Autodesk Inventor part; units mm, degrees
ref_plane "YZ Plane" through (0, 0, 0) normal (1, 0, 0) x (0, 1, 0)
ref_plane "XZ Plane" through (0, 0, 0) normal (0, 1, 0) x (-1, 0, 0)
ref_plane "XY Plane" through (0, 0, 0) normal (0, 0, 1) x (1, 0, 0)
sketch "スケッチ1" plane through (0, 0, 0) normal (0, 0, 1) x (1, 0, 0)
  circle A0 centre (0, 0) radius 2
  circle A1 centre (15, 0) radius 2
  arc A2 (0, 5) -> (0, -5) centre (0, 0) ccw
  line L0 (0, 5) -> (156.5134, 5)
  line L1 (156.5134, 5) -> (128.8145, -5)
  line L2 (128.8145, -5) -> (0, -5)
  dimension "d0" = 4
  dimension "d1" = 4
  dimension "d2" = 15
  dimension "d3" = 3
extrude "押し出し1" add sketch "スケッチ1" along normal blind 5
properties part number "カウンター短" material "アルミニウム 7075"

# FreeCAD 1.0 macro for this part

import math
import FreeCAD as App
import Part
import Sketcher
Q = App.Units.Quantity

doc = App.newDocument("Part")
body = doc.addObject("PartDesign::Body", "Body")

sketch1 = doc.addObject("Sketcher::SketchObject", "Sketch")
body.addObject(sketch1)
sketch1.AttachmentSupport = (doc.XY_Plane, [""])
sketch1.MapMode = "FlatFace"
sketch1.addGeometry(Part.LineSegment(App.Vector(156.5, 5, 0), App.Vector(0, 5, 0)), False)
sketch1.addGeometry(Part.ArcOfCircle(Part.Circle(App.Vector(0, 0, 0), App.Vector(0, 0, 1), 5), math.radians(90), math.radians(270)), False)
sketch1.addGeometry(Part.LineSegment(App.Vector(0, -5, 0), App.Vector(128.8, -5, 0)), False)
sketch1.addGeometry(Part.LineSegment(App.Vector(128.8, -5, 0), App.Vector(156.5, 5, 0)), False)
sketch1.addGeometry(Part.Circle(App.Vector(0, 0, 0), App.Vector(0, 0, 1), 2), False)
sketch1.addGeometry(Part.Circle(App.Vector(15, 0, 0), App.Vector(0, 0, 1), 2), False)
sketch1.addConstraint(Sketcher.Constraint("Tangent", 0, 2, 1, 1))
sketch1.addConstraint(Sketcher.Constraint("Tangent", 1, 2, 2, 1))
sketch1.addConstraint(Sketcher.Constraint("Coincident", 2, 2, 3, 1))
sketch1.addConstraint(Sketcher.Constraint("Coincident", 3, 2, 0, 1))
sketch1.addConstraint(Sketcher.Constraint("Horizontal", 0))
sketch1.addConstraint(Sketcher.Constraint("Horizontal", 2))
sketch1.addConstraint(Sketcher.Constraint("Coincident", 1, 3, -1, 1))
sketch1.addConstraint(Sketcher.Constraint("Coincident", 4, 3, -1, 1))
sketch1.addConstraint(Sketcher.Constraint("Equal", 4, 5))
sketch1.addConstraint(Sketcher.Constraint("PointOnObject", 5, 3, -1))
sketch1.addConstraint(Sketcher.Constraint("Diameter", 4, Q("4 mm")))
sketch1.addConstraint(Sketcher.Constraint("DistanceX", -1, 1, 5, 3, Q("15 mm")))
sketch1.addConstraint(Sketcher.Constraint("Radius", 1, Q("5 mm")))
sketch1.addConstraint(Sketcher.Constraint("Angle", 3, Q("19.8509 deg")))
sketch1.addConstraint(Sketcher.Constraint("DistanceX", 0, 2, 0, 1, Q("156.5134 mm")))
pad1 = doc.addObject("PartDesign::Pad", "Pad")
body.addObject(pad1)
pad1.Profile = sketch1
pad1.Length = 5

doc.recompute()
